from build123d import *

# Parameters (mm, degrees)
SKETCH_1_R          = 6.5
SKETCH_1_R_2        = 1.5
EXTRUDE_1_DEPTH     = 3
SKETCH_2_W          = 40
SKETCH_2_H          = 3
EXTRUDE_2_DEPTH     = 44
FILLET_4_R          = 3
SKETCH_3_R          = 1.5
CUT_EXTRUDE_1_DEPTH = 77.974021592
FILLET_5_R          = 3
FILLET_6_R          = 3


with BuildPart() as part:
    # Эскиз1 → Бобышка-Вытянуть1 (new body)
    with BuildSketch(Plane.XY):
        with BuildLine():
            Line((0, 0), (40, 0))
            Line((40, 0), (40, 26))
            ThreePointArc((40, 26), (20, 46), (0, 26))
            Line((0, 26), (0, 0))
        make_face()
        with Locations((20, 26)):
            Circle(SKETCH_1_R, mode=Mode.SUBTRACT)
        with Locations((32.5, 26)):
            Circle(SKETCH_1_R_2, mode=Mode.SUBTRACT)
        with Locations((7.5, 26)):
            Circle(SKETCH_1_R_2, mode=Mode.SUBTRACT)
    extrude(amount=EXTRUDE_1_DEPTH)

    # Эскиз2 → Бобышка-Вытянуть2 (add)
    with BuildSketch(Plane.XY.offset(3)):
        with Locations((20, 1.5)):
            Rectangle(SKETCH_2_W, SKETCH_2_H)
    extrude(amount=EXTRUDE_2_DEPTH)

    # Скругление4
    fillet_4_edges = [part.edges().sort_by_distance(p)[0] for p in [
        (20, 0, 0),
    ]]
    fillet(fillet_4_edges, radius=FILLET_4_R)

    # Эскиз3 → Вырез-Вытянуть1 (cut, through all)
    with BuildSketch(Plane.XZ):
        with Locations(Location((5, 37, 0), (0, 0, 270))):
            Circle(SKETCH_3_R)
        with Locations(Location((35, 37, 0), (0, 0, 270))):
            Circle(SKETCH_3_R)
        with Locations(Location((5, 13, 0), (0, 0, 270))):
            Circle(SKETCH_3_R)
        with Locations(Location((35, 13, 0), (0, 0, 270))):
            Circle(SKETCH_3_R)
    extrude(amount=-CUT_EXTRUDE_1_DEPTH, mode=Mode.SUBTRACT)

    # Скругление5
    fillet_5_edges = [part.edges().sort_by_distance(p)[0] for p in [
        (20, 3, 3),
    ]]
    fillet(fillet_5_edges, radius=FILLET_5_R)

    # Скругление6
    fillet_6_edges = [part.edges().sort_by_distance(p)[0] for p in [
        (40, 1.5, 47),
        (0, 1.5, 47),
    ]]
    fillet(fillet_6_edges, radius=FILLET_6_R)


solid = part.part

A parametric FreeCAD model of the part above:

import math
import FreeCAD as App
import Part
import Sketcher
Q = App.Units.Quantity


def edges_at(feature, points):
    """Names of the edges that pass closest to the given points."""
    edges = feature.Shape.Edges
    near = lambda p: min(range(len(edges)), key=lambda i: edges[i].distToShape(Part.Vertex(*p))[0])
    return sorted({f"Edge{near(p) + 1}" for p in points})


def add_polygon(sketch, points):
    """Adds a closed chain of lines whose ends are joined by coincident constraints."""
    first, n = sketch.GeometryCount, len(points)
    for a, b in zip(points, points[1:] + points[:1]):
        sketch.addGeometry(Part.LineSegment(App.Vector(*a, 0), App.Vector(*b, 0)), False)
    for i in range(n):
        sketch.addConstraint(Sketcher.Constraint("Coincident", first + i, 2, first + (i + 1) % n, 1))

doc = App.newDocument("Part")
body = doc.addObject("PartDesign::Body", "Body")

sketch1 = doc.addObject("Sketcher::SketchObject", "Sketch")
body.addObject(sketch1)
sketch1.AttachmentSupport = (doc.XY_Plane, [""])
sketch1.MapMode = "FlatFace"
sketch1.addGeometry(Part.LineSegment(App.Vector(0, 0, 0), App.Vector(40, 0, 0)), False)
sketch1.addGeometry(Part.LineSegment(App.Vector(40, 0, 0), App.Vector(40, 26, 0)), False)
sketch1.addGeometry(Part.ArcOfCircle(Part.Circle(App.Vector(20, 26, 0), App.Vector(0, 0, 1), 20), math.radians(0), math.radians(180)), False)
sketch1.addGeometry(Part.LineSegment(App.Vector(0, 26, 0), App.Vector(0, 0, 0)), False)
sketch1.addGeometry(Part.Circle(App.Vector(7.5, 26, 0), App.Vector(0, 0, 1), 1.5), False)
sketch1.addGeometry(Part.Circle(App.Vector(20, 26, 0), App.Vector(0, 0, 1), 6.5), False)
sketch1.addGeometry(Part.Circle(App.Vector(32.5, 26, 0), App.Vector(0, 0, 1), 1.5), False)
sketch1.addConstraint(Sketcher.Constraint("Coincident", 0, 2, 1, 1))
sketch1.addConstraint(Sketcher.Constraint("Tangent", 1, 2, 2, 1))
sketch1.addConstraint(Sketcher.Constraint("Tangent", 2, 2, 3, 1))
sketch1.addConstraint(Sketcher.Constraint("Coincident", 3, 2, 0, 1))
sketch1.addConstraint(Sketcher.Constraint("Horizontal", 0))
sketch1.addConstraint(Sketcher.Constraint("Vertical", 1))
sketch1.addConstraint(Sketcher.Constraint("Vertical", 3))
sketch1.addConstraint(Sketcher.Constraint("Coincident", 3, 2, -1, 1))
sketch1.addConstraint(Sketcher.Constraint("Coincident", 5, 3, 2, 3))
sketch1.addConstraint(Sketcher.Constraint("Equal", 4, 6))
sketch1.addConstraint(Sketcher.Constraint("Horizontal", 2, 3, 4, 3))
sketch1.addConstraint(Sketcher.Constraint("Horizontal", 5, 3, 6, 3))
sketch1.addConstraint(Sketcher.Constraint("Diameter", 4, Q("3 mm")))
sketch1.addConstraint(Sketcher.Constraint("Diameter", 5, Q("13 mm")))
sketch1.addConstraint(Sketcher.Constraint("Radius", 2, Q("20 mm")))
sketch1.addConstraint(Sketcher.Constraint("DistanceY", 1, 1, 1, 2, Q("26 mm")))
sketch1.addConstraint(Sketcher.Constraint("DistanceX", 4, 3, 6, 3, Q("25 mm")))
sketch1.addConstraint(Sketcher.Constraint("DistanceX", -1, 1, 4, 3, Q("7.5 mm")))
pad1 = doc.addObject("PartDesign::Pad", "Pad")
body.addObject(pad1)
pad1.Profile = sketch1
pad1.Length = 3

sketch2 = doc.addObject("Sketcher::SketchObject", "Sketch001")
body.addObject(sketch2)
sketch2.AttachmentSupport = (doc.XY_Plane, [""])
sketch2.MapMode = "FlatFace"
sketch2.AttachmentOffset = App.Placement(App.Vector(0, 0, 3), App.Rotation())
add_polygon(sketch2, [(0, 3), (0, 0), (40, 0), (40, 3)])
sketch2.addConstraint(Sketcher.Constraint("Vertical", 0))
sketch2.addConstraint(Sketcher.Constraint("Horizontal", 1))
sketch2.addConstraint(Sketcher.Constraint("Vertical", 2))
sketch2.addConstraint(Sketcher.Constraint("Horizontal", 3))
sketch2.addConstraint(Sketcher.Constraint("Coincident", 0, 2, -1, 1))
sketch2.addConstraint(Sketcher.Constraint("DistanceX", 1, 1, 1, 2, Q("40 mm")))
sketch2.addConstraint(Sketcher.Constraint("DistanceY", 0, 2, 0, 1, Q("3 mm")))
pad2 = doc.addObject("PartDesign::Pad", "Pad001")
body.addObject(pad2)
pad2.Profile = sketch2
pad2.Length = 44
doc.recompute()

fillet = doc.addObject("PartDesign::Fillet", "Fillet")
body.addObject(fillet)
fillet.Base = (pad2, edges_at(pad2, [(20, 0, 0)]))
fillet.Radius = 3

sketch3 = doc.addObject("Sketcher::SketchObject", "Sketch002")
body.addObject(sketch3)
sketch3.AttachmentSupport = (doc.XZ_Plane, [""])
sketch3.MapMode = "FlatFace"
sketch3.addGeometry(Part.Circle(App.Vector(5, 37, 0), App.Vector(0, 0, 1), 1.5), False)
sketch3.addGeometry(Part.Circle(App.Vector(35, 37, 0), App.Vector(0, 0, 1), 1.5), False)
sketch3.addGeometry(Part.Circle(App.Vector(5, 13, 0), App.Vector(0, 0, 1), 1.5), False)
sketch3.addGeometry(Part.Circle(App.Vector(35, 13, 0), App.Vector(0, 0, 1), 1.5), False)
sketch3.addConstraint(Sketcher.Constraint("Equal", 0, 1))
sketch3.addConstraint(Sketcher.Constraint("Equal", 1, 2))
sketch3.addConstraint(Sketcher.Constraint("Equal", 2, 3))
sketch3.addConstraint(Sketcher.Constraint("Horizontal", 0, 3, 1, 3))
sketch3.addConstraint(Sketcher.Constraint("Horizontal", 2, 3, 3, 3))
sketch3.addConstraint(Sketcher.Constraint("Vertical", 0, 3, 2, 3))
sketch3.addConstraint(Sketcher.Constraint("Vertical", 1, 3, 3, 3))
sketch3.addConstraint(Sketcher.Constraint("Diameter", 0, Q("3 mm")))
sketch3.addConstraint(Sketcher.Constraint("DistanceX", -1, 1, 0, 3, Q("5 mm")))
sketch3.addConstraint(Sketcher.Constraint("DistanceY", -1, 1, 0, 3, Q("37 mm")))
sketch3.addConstraint(Sketcher.Constraint("DistanceX", -1, 1, 1, 3, Q("35 mm")))
sketch3.addConstraint(Sketcher.Constraint("DistanceY", -1, 1, 2, 3, Q("13 mm")))
pocket1 = doc.addObject("PartDesign::Pocket", "Pocket")
body.addObject(pocket1)
pocket1.Profile = sketch3
pocket1.Type = "ThroughAll"
doc.recompute()

fillet2 = doc.addObject("PartDesign::Fillet", "Fillet001")
body.addObject(fillet2)
fillet2.Base = (pocket1, edges_at(pocket1, [(20, 3, 3)]))
fillet2.Radius = 3
doc.recompute()

fillet3 = doc.addObject("PartDesign::Fillet", "Fillet002")
body.addObject(fillet3)
fillet3.Base = (fillet2, edges_at(fillet2, [(40, 1.5, 47), (0, 1.5, 47)]))
fillet3.Radius = 3

doc.recompute()
